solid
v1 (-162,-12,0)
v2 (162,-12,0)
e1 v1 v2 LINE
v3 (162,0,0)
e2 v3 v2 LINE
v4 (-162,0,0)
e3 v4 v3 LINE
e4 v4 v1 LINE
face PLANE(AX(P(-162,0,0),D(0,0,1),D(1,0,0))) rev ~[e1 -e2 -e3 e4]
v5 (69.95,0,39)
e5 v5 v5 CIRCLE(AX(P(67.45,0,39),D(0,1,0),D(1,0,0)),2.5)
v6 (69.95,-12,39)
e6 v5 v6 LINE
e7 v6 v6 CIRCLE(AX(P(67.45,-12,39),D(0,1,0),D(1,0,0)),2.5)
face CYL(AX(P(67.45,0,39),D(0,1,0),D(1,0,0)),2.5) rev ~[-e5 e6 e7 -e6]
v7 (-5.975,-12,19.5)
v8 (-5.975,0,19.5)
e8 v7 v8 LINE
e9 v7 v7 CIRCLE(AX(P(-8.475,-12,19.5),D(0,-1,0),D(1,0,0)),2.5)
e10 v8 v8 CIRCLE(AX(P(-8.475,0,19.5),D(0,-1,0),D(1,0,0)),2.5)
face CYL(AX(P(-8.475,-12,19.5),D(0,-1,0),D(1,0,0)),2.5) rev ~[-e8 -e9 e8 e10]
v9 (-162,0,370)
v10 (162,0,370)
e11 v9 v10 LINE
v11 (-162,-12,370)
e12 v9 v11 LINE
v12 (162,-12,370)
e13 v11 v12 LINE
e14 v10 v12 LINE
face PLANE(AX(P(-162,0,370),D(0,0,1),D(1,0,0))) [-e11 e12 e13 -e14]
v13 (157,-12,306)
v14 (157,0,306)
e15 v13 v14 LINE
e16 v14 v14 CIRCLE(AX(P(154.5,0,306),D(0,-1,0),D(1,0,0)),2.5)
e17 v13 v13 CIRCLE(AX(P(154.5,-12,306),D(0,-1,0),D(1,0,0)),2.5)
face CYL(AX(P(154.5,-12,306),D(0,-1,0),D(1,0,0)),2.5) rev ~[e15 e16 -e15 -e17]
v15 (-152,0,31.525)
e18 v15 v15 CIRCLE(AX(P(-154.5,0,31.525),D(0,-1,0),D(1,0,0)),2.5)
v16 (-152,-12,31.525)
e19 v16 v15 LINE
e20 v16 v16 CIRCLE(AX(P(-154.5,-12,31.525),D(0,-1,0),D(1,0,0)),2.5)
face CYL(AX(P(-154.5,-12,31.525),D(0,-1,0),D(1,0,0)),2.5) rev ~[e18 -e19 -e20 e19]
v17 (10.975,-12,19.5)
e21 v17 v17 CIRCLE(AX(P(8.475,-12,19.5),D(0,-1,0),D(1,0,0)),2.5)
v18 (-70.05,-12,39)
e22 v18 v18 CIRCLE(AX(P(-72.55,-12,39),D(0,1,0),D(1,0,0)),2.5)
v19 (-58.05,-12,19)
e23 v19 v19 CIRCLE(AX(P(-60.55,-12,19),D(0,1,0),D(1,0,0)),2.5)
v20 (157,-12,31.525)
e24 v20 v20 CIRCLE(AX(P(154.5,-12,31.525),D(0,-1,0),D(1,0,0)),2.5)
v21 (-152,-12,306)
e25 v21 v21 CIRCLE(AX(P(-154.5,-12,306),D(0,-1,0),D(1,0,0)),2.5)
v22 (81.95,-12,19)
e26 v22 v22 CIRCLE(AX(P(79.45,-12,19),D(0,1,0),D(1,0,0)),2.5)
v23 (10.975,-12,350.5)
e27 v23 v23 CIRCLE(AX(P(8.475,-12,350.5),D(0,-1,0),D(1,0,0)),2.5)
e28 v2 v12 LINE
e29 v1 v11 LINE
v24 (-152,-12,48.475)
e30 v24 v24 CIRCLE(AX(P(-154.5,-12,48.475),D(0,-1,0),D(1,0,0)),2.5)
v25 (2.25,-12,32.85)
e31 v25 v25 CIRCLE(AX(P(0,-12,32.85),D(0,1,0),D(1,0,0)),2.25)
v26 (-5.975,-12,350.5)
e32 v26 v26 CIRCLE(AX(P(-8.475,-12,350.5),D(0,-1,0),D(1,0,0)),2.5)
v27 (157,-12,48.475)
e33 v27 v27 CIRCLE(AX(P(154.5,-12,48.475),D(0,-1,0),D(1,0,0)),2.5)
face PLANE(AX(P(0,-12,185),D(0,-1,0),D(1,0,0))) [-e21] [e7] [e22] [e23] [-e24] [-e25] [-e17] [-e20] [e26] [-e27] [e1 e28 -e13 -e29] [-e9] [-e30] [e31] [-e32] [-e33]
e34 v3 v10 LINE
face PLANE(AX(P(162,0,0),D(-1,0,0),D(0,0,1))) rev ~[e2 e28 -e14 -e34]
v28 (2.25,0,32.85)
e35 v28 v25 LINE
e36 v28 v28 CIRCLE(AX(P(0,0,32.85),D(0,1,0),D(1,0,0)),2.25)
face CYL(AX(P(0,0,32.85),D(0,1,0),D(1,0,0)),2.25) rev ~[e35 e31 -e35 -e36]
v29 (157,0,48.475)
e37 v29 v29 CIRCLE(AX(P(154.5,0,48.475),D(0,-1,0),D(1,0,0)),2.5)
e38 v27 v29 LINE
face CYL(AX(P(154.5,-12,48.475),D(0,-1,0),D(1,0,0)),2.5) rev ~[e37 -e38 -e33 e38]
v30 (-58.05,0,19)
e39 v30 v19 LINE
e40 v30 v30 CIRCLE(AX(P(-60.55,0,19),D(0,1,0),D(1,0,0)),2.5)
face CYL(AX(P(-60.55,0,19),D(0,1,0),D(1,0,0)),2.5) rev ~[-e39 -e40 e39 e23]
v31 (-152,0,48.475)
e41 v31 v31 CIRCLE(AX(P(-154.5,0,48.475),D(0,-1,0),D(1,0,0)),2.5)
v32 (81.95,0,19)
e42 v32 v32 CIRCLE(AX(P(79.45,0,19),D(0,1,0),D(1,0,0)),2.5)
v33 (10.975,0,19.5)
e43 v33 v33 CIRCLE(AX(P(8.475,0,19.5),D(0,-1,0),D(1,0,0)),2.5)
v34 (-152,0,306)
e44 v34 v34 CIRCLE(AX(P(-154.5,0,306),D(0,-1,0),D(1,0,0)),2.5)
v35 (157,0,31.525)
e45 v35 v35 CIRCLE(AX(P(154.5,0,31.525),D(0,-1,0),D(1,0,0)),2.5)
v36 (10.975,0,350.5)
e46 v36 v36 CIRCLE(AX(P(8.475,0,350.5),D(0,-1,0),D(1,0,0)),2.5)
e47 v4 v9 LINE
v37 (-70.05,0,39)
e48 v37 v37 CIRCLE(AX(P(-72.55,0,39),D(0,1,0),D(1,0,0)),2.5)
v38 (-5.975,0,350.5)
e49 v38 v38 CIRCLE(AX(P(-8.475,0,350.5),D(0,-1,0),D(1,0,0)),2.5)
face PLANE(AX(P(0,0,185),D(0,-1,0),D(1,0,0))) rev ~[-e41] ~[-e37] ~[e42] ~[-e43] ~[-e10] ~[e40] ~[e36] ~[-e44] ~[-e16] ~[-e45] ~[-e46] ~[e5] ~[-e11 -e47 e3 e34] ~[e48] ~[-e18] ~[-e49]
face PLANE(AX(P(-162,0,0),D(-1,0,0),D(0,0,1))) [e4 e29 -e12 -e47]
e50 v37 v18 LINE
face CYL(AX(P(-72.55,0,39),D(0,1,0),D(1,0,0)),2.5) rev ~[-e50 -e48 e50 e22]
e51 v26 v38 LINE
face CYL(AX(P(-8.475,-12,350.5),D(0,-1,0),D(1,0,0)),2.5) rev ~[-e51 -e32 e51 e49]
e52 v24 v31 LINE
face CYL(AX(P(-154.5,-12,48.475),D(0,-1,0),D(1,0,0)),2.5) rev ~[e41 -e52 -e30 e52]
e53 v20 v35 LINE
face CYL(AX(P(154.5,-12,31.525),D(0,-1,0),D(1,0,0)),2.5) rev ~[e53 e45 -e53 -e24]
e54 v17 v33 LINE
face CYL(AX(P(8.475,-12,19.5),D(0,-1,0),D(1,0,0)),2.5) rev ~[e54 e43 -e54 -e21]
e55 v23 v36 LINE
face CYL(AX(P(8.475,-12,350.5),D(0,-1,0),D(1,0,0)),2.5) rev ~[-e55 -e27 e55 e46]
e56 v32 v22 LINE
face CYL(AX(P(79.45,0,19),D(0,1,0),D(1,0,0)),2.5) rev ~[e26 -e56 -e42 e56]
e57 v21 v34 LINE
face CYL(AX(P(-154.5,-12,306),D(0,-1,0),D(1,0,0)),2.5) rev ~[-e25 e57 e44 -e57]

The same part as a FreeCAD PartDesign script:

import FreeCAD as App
import Part
import Sketcher

V = App.Vector
Q = App.Units.Quantity

doc = App.newDocument("Part")
params = doc.addObject("Spreadsheet::Sheet", "Params")
for row, (alias, value) in enumerate([
    ("sketch1_width", "324 mm"),
    ("sketch1_height", "370 mm"),
    ("pad1_length", "12 mm"),
    ("sketch2_diameter", "5 mm"),
    ("sketch3_diameter", "5 mm"),
    ("sketch3_diameter2", "4.5 mm"),
], start=1):
    params.set(f"A{row}", alias)
    params.set(f"B{row}", "=" + value)
    params.setAlias(f"B{row}", alias)

body = doc.addObject("PartDesign::Body", "Body")

sketch1 = body.newObject("Sketcher::SketchObject", "Sketch")
sketch1.AttachmentSupport = (doc.getObject("XZ_Plane"), [""])
sketch1.MapMode = "FlatFace"
sketch1.addGeometry(Part.LineSegment(V(-162, 370, 0), V(-162, 0, 0)), False)
sketch1.addGeometry(Part.LineSegment(V(-162, 0, 0), V(162, 0, 0)), False)
sketch1.addGeometry(Part.LineSegment(V(162, 0, 0), V(162, 370, 0)), False)
sketch1.addGeometry(Part.LineSegment(V(162, 370, 0), V(-162, 370, 0)), False)
sketch1.addConstraint(Sketcher.Constraint("Coincident", 0, 2, 1, 1))
sketch1.addConstraint(Sketcher.Constraint("Coincident", 1, 2, 2, 1))
sketch1.addConstraint(Sketcher.Constraint("Coincident", 2, 2, 3, 1))
sketch1.addConstraint(Sketcher.Constraint("Coincident", 3, 2, 0, 1))
sketch1.addConstraint(Sketcher.Constraint("Vertical", 0))
sketch1.addConstraint(Sketcher.Constraint("Horizontal", 1))
sketch1.addConstraint(Sketcher.Constraint("Vertical", 2))
sketch1.addConstraint(Sketcher.Constraint("Horizontal", 3))
sketch1.addConstraint(Sketcher.Constraint("Symmetric", 0, 2, 1, 2, -1, 1))
sketch1.addConstraint(Sketcher.Constraint("DistanceX", 1, 1, 1, 2, Q("324 mm")))
sketch1.addConstraint(Sketcher.Constraint("DistanceY", 0, 2, 0, 1, Q("370 mm")))
sketch1.setExpression("Constraints[9]", "Params.sketch1_width")
sketch1.setExpression("Constraints[10]", "Params.sketch1_height")
pad1 = body.newObject("PartDesign::Pad", "Pad")
pad1.Profile = sketch1
pad1.setExpression("Length", "Params.pad1_length")

sketch2 = body.newObject("Sketcher::SketchObject", "Sketch001")
sketch2.AttachmentSupport = (doc.getObject("XZ_Plane"), [""])
sketch2.MapMode = "FlatFace"
sketch2.AttachmentOffset = App.Placement(V(0, 0, 12), App.Rotation())
sketch2.addGeometry(Part.Circle(V(-154.5, 31.525, 0), V(0, 0, 1), 2.5), False)
sketch2.addGeometry(Part.Circle(V(-154.5, 48.475, 0), V(0, 0, 1), 2.5), False)
sketch2.addGeometry(Part.Circle(V(-154.5, 306, 0), V(0, 0, 1), 2.5), False)
sketch2.addGeometry(Part.Circle(V(-8.475, 350.5, 0), V(0, 0, 1), 2.5), False)
sketch2.addGeometry(Part.Circle(V(8.475, 350.5, 0), V(0, 0, 1), 2.5), False)
sketch2.addGeometry(Part.Circle(V(154.5, 306, 0), V(0, 0, 1), 2.5), False)
sketch2.addGeometry(Part.Circle(V(154.5, 48.475, 0), V(0, 0, 1), 2.5), False)
sketch2.addGeometry(Part.Circle(V(154.5, 31.525, 0), V(0, 0, 1), 2.5), False)
sketch2.addGeometry(Part.Circle(V(8.475, 19.5, 0), V(0, 0, 1), 2.5), False)
sketch2.addGeometry(Part.Circle(V(-8.475, 19.5, 0), V(0, 0, 1), 2.5), False)
sketch2.addConstraint(Sketcher.Constraint("Equal", 0, 1))
sketch2.addConstraint(Sketcher.Constraint("Equal", 1, 2))
sketch2.addConstraint(Sketcher.Constraint("Equal", 2, 3))
sketch2.addConstraint(Sketcher.Constraint("Equal", 3, 4))
sketch2.addConstraint(Sketcher.Constraint("Equal", 4, 5))
sketch2.addConstraint(Sketcher.Constraint("Equal", 5, 6))
sketch2.addConstraint(Sketcher.Constraint("Equal", 6, 7))
sketch2.addConstraint(Sketcher.Constraint("Equal", 7, 8))
sketch2.addConstraint(Sketcher.Constraint("Equal", 8, 9))
sketch2.addConstraint(Sketcher.Constraint("Symmetric", 3, 3, 4, 3, -2))
sketch2.addConstraint(Sketcher.Constraint("Symmetric", 2, 3, 5, 3, -2))
sketch2.addConstraint(Sketcher.Constraint("Symmetric", 1, 3, 6, 3, -2))
sketch2.addConstraint(Sketcher.Constraint("Symmetric", 0, 3, 7, 3, -2))
sketch2.addConstraint(Sketcher.Constraint("Symmetric", 8, 3, 9, 3, -2))
sketch2.addConstraint(Sketcher.Constraint("Vertical", 0, 3, 1, 3))
sketch2.addConstraint(Sketcher.Constraint("Vertical", 1, 3, 2, 3))
sketch2.addConstraint(Sketcher.Constraint("Vertical", 4, 3, 8, 3))
sketch2.addConstraint(Sketcher.Constraint("Diameter", 0, Q("5 mm")))
sketch2.addConstraint(Sketcher.Constraint("DistanceY", -1, 1, 2, 3, Q("306 mm")))
sketch2.addConstraint(Sketcher.Constraint("DistanceX", 2, 3, 5, 3, Q("309 mm")))
sketch2.addConstraint(Sketcher.Constraint("DistanceY", -1, 1, 3, 3, Q("350.5 mm")))
sketch2.addConstraint(Sketcher.Constraint("DistanceY", -1, 1, 8, 3, Q("19.5 mm")))
sketch2.addConstraint(Sketcher.Constraint("DistanceY", 0, 3, 1, 3, Q("16.95 mm")))
sketch2.addConstraint(Sketcher.Constraint("DistanceX", 3, 3, 4, 3, Q("16.95 mm")))
sketch2.addConstraint(Sketcher.Constraint("DistanceY", -1, 1, 0, 3, Q("31.525 mm")))
sketch2.setExpression("Constraints[17]", "Params.sketch2_diameter")
pocket1 = body.newObject("PartDesign::Pocket", "Pocket")
pocket1.Profile = sketch2
pocket1.Type = "ThroughAll"

sketch3 = body.newObject("Sketcher::SketchObject", "Sketch002")
sketch3.AttachmentSupport = (doc.getObject("XZ_Plane"), [""])
sketch3.MapMode = "FlatFace"
sketch3.addGeometry(Part.Circle(V(-72.55, 39, 0), V(0, 0, 1), 2.5), False)
sketch3.addGeometry(Part.Circle(V(-60.55, 19, 0), V(0, 0, 1), 2.5), False)
sketch3.addGeometry(Part.Circle(V(79.45, 19, 0), V(0, 0, 1), 2.5), False)
sketch3.addGeometry(Part.Circle(V(67.45, 39, 0), V(0, 0, 1), 2.5), False)
sketch3.addGeometry(Part.Circle(V(0, 32.85, 0), V(0, 0, 1), 2.25), False)
sketch3.addConstraint(Sketcher.Constraint("Equal", 0, 1))
sketch3.addConstraint(Sketcher.Constraint("Equal", 1, 2))
sketch3.addConstraint(Sketcher.Constraint("Equal", 2, 3))
sketch3.addConstraint(Sketcher.Constraint("PointOnObject", 4, 3, -2))
sketch3.addConstraint(Sketcher.Constraint("Horizontal", 1, 3, 2, 3))
sketch3.addConstraint(Sketcher.Constraint("Horizontal", 0, 3, 3, 3))
sketch3.addConstraint(Sketcher.Constraint("Diameter", 0, Q("5 mm")))
sketch3.addConstraint(Sketcher.Constraint("Diameter", 4, Q("4.5 mm")))
sketch3.addConstraint(Sketcher.Constraint("DistanceY", -1, 1, 0, 3, Q("39 mm")))
sketch3.addConstraint(Sketcher.Constraint("DistanceY", -1, 1, 1, 3, Q("19 mm")))
sketch3.addConstraint(Sketcher.Constraint("DistanceX", 0, 3, 1, 3, Q("12 mm")))
sketch3.addConstraint(Sketcher.Constraint("DistanceX", 1, 3, 2, 3, Q("140 mm")))
sketch3.addConstraint(Sketcher.Constraint("DistanceX", 3, 3, 2, 3, Q("12 mm")))
sketch3.addConstraint(Sketcher.Constraint("DistanceX", 0, 3, -1, 1, Q("72.55 mm")))
sketch3.addConstraint(Sketcher.Constraint("DistanceY", -1, 1, 4, 3, Q("32.85 mm")))
sketch3.setExpression("Constraints[6]", "Params.sketch3_diameter")
sketch3.setExpression("Constraints[7]", "Params.sketch3_diameter2")
pocket2 = body.newObject("PartDesign::Pocket", "Pocket001")
pocket2.Profile = sketch3
pocket2.Type = "ThroughAll"
pocket2.Reversed = True

doc.recompute()
